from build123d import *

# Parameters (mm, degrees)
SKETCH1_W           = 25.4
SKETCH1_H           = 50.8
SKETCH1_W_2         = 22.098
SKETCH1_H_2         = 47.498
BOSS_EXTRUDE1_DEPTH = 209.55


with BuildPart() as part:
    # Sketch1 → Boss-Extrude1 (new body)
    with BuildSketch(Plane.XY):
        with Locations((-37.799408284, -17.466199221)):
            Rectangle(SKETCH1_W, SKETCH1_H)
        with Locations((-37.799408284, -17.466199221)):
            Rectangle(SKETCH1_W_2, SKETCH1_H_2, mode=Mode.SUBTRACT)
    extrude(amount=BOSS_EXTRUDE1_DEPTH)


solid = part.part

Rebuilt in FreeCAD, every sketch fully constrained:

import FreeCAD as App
import Part
import Sketcher
from FreeCAD import Vector
Q = App.Units.Quantity


def add_polygon(sketch, points):
    """Adds a closed chain of lines whose ends are joined by coincident constraints."""
    first, n = sketch.GeometryCount, len(points)
    for a, b in zip(points, points[1:] + points[:1]):
        sketch.addGeometry(Part.LineSegment(App.Vector(*a, 0), App.Vector(*b, 0)), False)
    for i in range(n):
        sketch.addConstraint(Sketcher.Constraint("Coincident", first + i, 2, first + (i + 1) % n, 1))

doc = App.newDocument("Part")
body = doc.addObject("PartDesign::Body", "Body")

# Sketch on XY plane
sketch1 = body.newObject("Sketcher::SketchObject", "Sketch")
sketch1.AttachmentSupport = (doc.getObject("XY_Plane"), [""])
sketch1.MapMode = "FlatFace"
add_polygon(sketch1, [(-50, 8), (-50, -43), (-25, -43), (-25, 8)])  # lines 0-3
add_polygon(sketch1, [(-27, -41), (-49, -41), (-49, 6), (-27, 6)])  # lines 4-7
sketch1.addConstraint([
    Sketcher.Constraint("Vertical", 0),
    Sketcher.Constraint("Horizontal", 1),
    Sketcher.Constraint("Vertical", 2),
    Sketcher.Constraint("Horizontal", 3),
    Sketcher.Constraint("Horizontal", 4),
    Sketcher.Constraint("Vertical", 5),
    Sketcher.Constraint("Horizontal", 6),
    Sketcher.Constraint("Vertical", 7),
    Sketcher.Constraint("DistanceX", 1, 1, 1, 2, Q("1 in")),
    Sketcher.Constraint("DistanceY", 0, 2, 0, 1, Q("2 in")),
    Sketcher.Constraint("DistanceX", 4, 2, 4, 1, Q("0.87 in")),
    Sketcher.Constraint("DistanceY", 5, 1, 5, 2, Q("1.87 in")),
    Sketcher.Constraint("DistanceX", 0, 2, 4, 2, Q("0.065 in")),
    Sketcher.Constraint("DistanceY", 0, 2, 4, 2, Q("0.065 in")),
    Sketcher.Constraint("DistanceY", 0, 2, -1, 1, Q("42.866199 mm")),
    Sketcher.Constraint("DistanceX", 0, 2, -1, 1, Q("50.499408 mm")),
])
pad1 = body.newObject("PartDesign::Pad", "Pad")
pad1.Profile = sketch1
pad1.Length = Q("8.25 in")

doc.recompute()
